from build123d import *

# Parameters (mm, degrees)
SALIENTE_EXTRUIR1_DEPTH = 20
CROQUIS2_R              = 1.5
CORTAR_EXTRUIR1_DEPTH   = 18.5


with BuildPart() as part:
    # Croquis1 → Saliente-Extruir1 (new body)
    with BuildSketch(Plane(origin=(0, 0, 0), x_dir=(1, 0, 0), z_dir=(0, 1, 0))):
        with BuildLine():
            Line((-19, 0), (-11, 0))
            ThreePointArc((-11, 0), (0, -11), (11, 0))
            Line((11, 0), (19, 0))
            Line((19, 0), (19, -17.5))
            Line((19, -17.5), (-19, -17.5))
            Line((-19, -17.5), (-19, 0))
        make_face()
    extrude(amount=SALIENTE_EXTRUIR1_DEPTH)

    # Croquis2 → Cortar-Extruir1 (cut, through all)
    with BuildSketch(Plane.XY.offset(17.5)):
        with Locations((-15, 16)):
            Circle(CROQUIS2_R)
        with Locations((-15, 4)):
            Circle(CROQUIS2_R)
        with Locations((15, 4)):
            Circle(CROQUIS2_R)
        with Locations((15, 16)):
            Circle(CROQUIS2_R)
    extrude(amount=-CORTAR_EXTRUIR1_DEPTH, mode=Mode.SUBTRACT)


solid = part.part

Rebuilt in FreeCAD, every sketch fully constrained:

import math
import FreeCAD as App
import Part
import Sketcher
from FreeCAD import Vector

doc = App.newDocument("Part")
body = doc.addObject("PartDesign::Body", "Body")

# Sketch on XZ plane
sketch1 = body.newObject("Sketcher::SketchObject", "Sketch")
sketch1.AttachmentSupport = (doc.getObject("XZ_Plane"), [""])
sketch1.MapMode = "FlatFace"
sketch1.addGeometry([
    Part.LineSegment(Vector(-11, 0, 0), Vector(-19, 0, 0)),  # 0
    Part.LineSegment(Vector(-19, 0, 0), Vector(-19, 18, 0)),  # 1
    Part.LineSegment(Vector(-19, 18, 0), Vector(19, 18, 0)),  # 2
    Part.LineSegment(Vector(19, 18, 0), Vector(19, 0, 0)),  # 3
    Part.LineSegment(Vector(19, 0, 0), Vector(11, 0, 0)),  # 4
    Part.ArcOfCircle(Part.Circle(Vector(0, 0, 0), Vector(0, 0, 1), 11), math.radians(0), math.radians(180)),  # 5
], False)
sketch1.addConstraint([
    Sketcher.Constraint("Coincident", 0, 2, 1, 1),
    Sketcher.Constraint("Coincident", 1, 2, 2, 1),
    Sketcher.Constraint("Coincident", 2, 2, 3, 1),
    Sketcher.Constraint("Coincident", 3, 2, 4, 1),
    Sketcher.Constraint("Coincident", 4, 2, 5, 1),
    Sketcher.Constraint("Coincident", 5, 2, 0, 1),
    Sketcher.Constraint("Horizontal", 0),
    Sketcher.Constraint("Vertical", 1),
    Sketcher.Constraint("Horizontal", 2),
    Sketcher.Constraint("Vertical", 3),
    Sketcher.Constraint("Horizontal", 4),
    Sketcher.Constraint("Coincident", 5, 3, -1, 1),
    Sketcher.Constraint("Symmetric", 0, 2, 3, 2, -1, 1),
    Sketcher.Constraint("PointOnObject", 0, 2, -1),
    Sketcher.Constraint("Radius", 5, 11.0),
    Sketcher.Constraint("DistanceX", 0, 2, 0, 1, 8.0),
    Sketcher.Constraint("DistanceY", 1, 1, 1, 2, 17.5),
])
pad1 = body.newObject("PartDesign::Pad", "Pad")
pad1.Profile = sketch1
pad1.Length = 20
pad1.Reversed = True

# Sketch on XY plane
sketch2 = body.newObject("Sketcher::SketchObject", "Sketch001")
sketch2.AttachmentSupport = (doc.getObject("XY_Plane"), [""])
sketch2.MapMode = "FlatFace"
sketch2.AttachmentOffset = App.Placement(Vector(0, 0, 17.5), App.Rotation())
sketch2.addGeometry([
    Part.Circle(Vector(-15, 16, 0), Vector(0, 0, 1), 1.5),
    Part.Circle(Vector(-15, 4, 0), Vector(0, 0, 1), 1.5),
    Part.Circle(Vector(15, 4, 0), Vector(0, 0, 1), 1.5),
    Part.Circle(Vector(15, 16, 0), Vector(0, 0, 1), 1.5),
], False)
sketch2.addConstraint([
    Sketcher.Constraint("Equal", 0, 1),
    Sketcher.Constraint("Equal", 1, 2),
    Sketcher.Constraint("Equal", 2, 3),
    Sketcher.Constraint("Symmetric", 1, 3, 2, 3, -2),
    Sketcher.Constraint("Symmetric", 0, 3, 3, 3, -2),
    Sketcher.Constraint("Vertical", 0, 3, 1, 3),
    Sketcher.Constraint("Diameter", 0, 3.0),
    Sketcher.Constraint("DistanceX", 0, 3, -1, 1, 15.0),
    Sketcher.Constraint("DistanceY", -1, 1, 0, 3, 16.0),
    Sketcher.Constraint("DistanceY", -1, 1, 1, 3, 4.0),
])
pocket1 = body.newObject("PartDesign::Pocket", "Pocket")
pocket1.Profile = sketch2
pocket1.Type = "ThroughAll"

doc.recompute()
